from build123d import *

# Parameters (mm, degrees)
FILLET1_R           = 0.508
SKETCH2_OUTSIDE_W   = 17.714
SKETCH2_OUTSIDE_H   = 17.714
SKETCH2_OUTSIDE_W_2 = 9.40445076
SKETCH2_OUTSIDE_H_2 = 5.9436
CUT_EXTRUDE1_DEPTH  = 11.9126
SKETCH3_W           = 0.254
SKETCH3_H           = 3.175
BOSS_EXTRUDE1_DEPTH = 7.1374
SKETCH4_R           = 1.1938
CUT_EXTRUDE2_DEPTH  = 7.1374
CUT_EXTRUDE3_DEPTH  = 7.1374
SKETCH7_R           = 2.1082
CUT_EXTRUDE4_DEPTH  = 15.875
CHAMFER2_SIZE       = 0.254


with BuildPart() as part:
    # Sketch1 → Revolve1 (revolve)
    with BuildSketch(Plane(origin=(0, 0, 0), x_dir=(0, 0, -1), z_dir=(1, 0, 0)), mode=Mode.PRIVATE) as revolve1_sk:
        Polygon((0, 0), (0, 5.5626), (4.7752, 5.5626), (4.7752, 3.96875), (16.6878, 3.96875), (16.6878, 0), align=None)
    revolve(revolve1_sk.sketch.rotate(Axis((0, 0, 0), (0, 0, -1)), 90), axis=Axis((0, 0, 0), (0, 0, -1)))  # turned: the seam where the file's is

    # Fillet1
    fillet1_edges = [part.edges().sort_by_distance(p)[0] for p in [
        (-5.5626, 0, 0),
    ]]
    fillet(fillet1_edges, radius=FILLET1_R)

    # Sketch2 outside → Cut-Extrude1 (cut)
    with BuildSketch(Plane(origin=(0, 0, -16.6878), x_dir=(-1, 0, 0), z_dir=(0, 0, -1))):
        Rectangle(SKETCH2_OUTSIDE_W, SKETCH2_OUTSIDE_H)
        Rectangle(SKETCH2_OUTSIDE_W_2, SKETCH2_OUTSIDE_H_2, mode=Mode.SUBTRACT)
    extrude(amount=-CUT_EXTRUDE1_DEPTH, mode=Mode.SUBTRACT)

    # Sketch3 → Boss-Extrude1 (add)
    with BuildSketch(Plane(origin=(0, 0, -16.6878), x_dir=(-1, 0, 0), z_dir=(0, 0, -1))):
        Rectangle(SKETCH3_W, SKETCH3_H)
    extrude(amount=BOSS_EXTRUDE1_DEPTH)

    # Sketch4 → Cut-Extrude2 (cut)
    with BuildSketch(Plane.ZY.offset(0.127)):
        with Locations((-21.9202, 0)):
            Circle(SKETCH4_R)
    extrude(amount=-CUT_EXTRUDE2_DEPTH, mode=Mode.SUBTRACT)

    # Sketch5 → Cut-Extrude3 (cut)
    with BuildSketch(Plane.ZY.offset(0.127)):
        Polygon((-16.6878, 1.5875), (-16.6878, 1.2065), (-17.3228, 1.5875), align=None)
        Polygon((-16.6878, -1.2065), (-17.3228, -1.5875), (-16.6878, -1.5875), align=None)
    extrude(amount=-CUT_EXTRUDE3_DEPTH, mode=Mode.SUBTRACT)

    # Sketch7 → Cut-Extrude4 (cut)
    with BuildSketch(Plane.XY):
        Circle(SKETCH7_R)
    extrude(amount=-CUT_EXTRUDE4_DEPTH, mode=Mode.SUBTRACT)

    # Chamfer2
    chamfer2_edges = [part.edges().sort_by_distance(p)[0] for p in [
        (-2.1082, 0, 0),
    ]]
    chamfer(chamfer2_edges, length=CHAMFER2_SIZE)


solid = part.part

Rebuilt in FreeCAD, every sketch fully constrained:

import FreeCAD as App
import Part
import Sketcher
Q = App.Units.Quantity


def edges_at(feature, points):
    """Names of the edges that pass closest to the given points."""
    edges = feature.Shape.Edges
    near = lambda p: min(range(len(edges)), key=lambda i: edges[i].distToShape(Part.Vertex(*p))[0])
    return sorted({f"Edge{near(p) + 1}" for p in points})


def add_polygon(sketch, points):
    """Adds a closed chain of lines whose ends are joined by coincident constraints."""
    first, n = sketch.GeometryCount, len(points)
    for a, b in zip(points, points[1:] + points[:1]):
        sketch.addGeometry(Part.LineSegment(App.Vector(*a, 0), App.Vector(*b, 0)), False)
    for i in range(n):
        sketch.addConstraint(Sketcher.Constraint("Coincident", first + i, 2, first + (i + 1) % n, 1))

doc = App.newDocument("Part")
body = doc.addObject("PartDesign::Body", "Body")

# Sketch on YZ plane
sketch1 = body.newObject("Sketcher::SketchObject", "Sketch")
sketch1.AttachmentSupport = (doc.getObject("YZ_Plane"), [""])
sketch1.MapMode = "FlatFace"
add_polygon(sketch1, [(5.6, 0), (0, 0), (0, -16.7), (4, -16.7), (4, -4.8), (5.6, -4.8)])  # lines 0-5
sketch1.addConstraint(Sketcher.Constraint("Horizontal", 0))
sketch1.addConstraint(Sketcher.Constraint("Vertical", 1))
sketch1.addConstraint(Sketcher.Constraint("Horizontal", 2))
sketch1.addConstraint(Sketcher.Constraint("Vertical", 3))
sketch1.addConstraint(Sketcher.Constraint("Horizontal", 4))
sketch1.addConstraint(Sketcher.Constraint("Vertical", 5))
sketch1.addConstraint(Sketcher.Constraint("Coincident", 0, 2, -1, 1))
sketch1.addConstraint(Sketcher.Constraint("DistanceX", 0, 2, 0, 1, Q("0.219 in")))
sketch1.addConstraint(Sketcher.Constraint("DistanceX", 2, 1, 2, 2, Q("0.15625 in")))
sketch1.addConstraint(Sketcher.Constraint("DistanceY", 1, 2, 1, 1, Q("0.657 in")))
sketch1.addConstraint(Sketcher.Constraint("DistanceY", 3, 1, 3, 2, Q("0.469 in")))
revolution = body.newObject("PartDesign::Revolution", "Revolution")
revolution.Profile = sketch1
revolution.ReferenceAxis = (sketch1, ["V_Axis"])
revolution.Angle = 360
doc.recompute()

fillet = body.newObject("PartDesign::Fillet", "Fillet")
fillet.Base = (revolution, edges_at(revolution, [(-5.563, 0, 0)]))
fillet.Radius = Q("0.02 in")

# Sketch on XY plane
sketch2 = body.newObject("Sketcher::SketchObject", "Sketch001")
sketch2.AttachmentSupport = (doc.getObject("XY_Plane"), [""])
sketch2.MapMode = "FlatFace"
sketch2.AttachmentOffset = App.Placement(App.Vector(0, 0, -0.657 * 25.4), App.Rotation())
add_polygon(sketch2, [(9, 9), (9, -9), (-9, -9), (-9, 9)])  # lines 0-3
add_polygon(sketch2, [(-5, -3), (5, -3), (5, 3), (-5, 3)])  # lines 4-7
sketch2.addConstraint(Sketcher.Constraint("Vertical", 0))
sketch2.addConstraint(Sketcher.Constraint("Horizontal", 1))
sketch2.addConstraint(Sketcher.Constraint("Vertical", 2))
sketch2.addConstraint(Sketcher.Constraint("Horizontal", 3))
sketch2.addConstraint(Sketcher.Constraint("Horizontal", 4))
sketch2.addConstraint(Sketcher.Constraint("Vertical", 5))
sketch2.addConstraint(Sketcher.Constraint("Horizontal", 6))
sketch2.addConstraint(Sketcher.Constraint("Vertical", 7))
sketch2.addConstraint(Sketcher.Constraint("Symmetric", 0, 2, 2, 2, -1, 1))
sketch2.addConstraint(Sketcher.Constraint("Symmetric", 4, 2, 6, 2, -1, 1))
sketch2.addConstraint(Sketcher.Constraint("Equal", 3, 0))
sketch2.addConstraint(Sketcher.Constraint("DistanceY", 5, 1, 5, 2, Q("0.234 in")))
sketch2.addConstraint(Sketcher.Constraint("DistanceX", 1, 2, 1, 1, Q("17.714 mm")))
sketch2.addConstraint(Sketcher.Constraint("DistanceX", 4, 1, 4, 2, Q("9.404451 mm")))
pocket1 = body.newObject("PartDesign::Pocket", "Pocket")
pocket1.Profile = sketch2
pocket1.Length = Q("0.469 in")
pocket1.Reversed = True

# Sketch on XY plane
sketch3 = body.newObject("Sketcher::SketchObject", "Sketch002")
sketch3.AttachmentSupport = (doc.getObject("XY_Plane"), [""])
sketch3.MapMode = "FlatFace"
sketch3.AttachmentOffset = App.Placement(App.Vector(0, 0, -0.657 * 25.4), App.Rotation())
add_polygon(sketch3, [(0.13, 1.59), (0.13, -1.59), (-0.13, -1.59), (-0.13, 1.59)])  # lines 0-3
sketch3.addConstraint(Sketcher.Constraint("Vertical", 0))
sketch3.addConstraint(Sketcher.Constraint("Horizontal", 1))
sketch3.addConstraint(Sketcher.Constraint("Vertical", 2))
sketch3.addConstraint(Sketcher.Constraint("Horizontal", 3))
sketch3.addConstraint(Sketcher.Constraint("Symmetric", 0, 2, 2, 2, -1, 1))
sketch3.addConstraint(Sketcher.Constraint("DistanceX", 1, 2, 1, 1, Q("0.01 in")))
sketch3.addConstraint(Sketcher.Constraint("DistanceY", 0, 2, 0, 1, Q("0.125 in")))
pad1 = body.newObject("PartDesign::Pad", "Pad")
pad1.Profile = sketch3
pad1.Length = Q("0.281 in")
pad1.Reversed = True

# Sketch on YZ plane
sketch4 = body.newObject("Sketcher::SketchObject", "Sketch003")
sketch4.AttachmentSupport = (doc.getObject("YZ_Plane"), [""])
sketch4.MapMode = "FlatFace"
sketch4.AttachmentOffset = App.Placement(App.Vector(0, 0, -0.005 * 25.4), App.Rotation())
sketch4.addGeometry(Part.Circle(App.Vector(0, -21.9, 0), App.Vector(0, 0, 1), 1.2), False)
sketch4.addConstraint(Sketcher.Constraint("PointOnObject", 0, 3, -2))
sketch4.addConstraint(Sketcher.Constraint("Diameter", 0, Q("0.094 in")))
sketch4.addConstraint(Sketcher.Constraint("DistanceY", 0, 3, -1, 1, Q("0.863 in")))
pocket2 = body.newObject("PartDesign::Pocket", "Pocket001")
pocket2.Profile = sketch4
pocket2.Length = Q("0.281 in")
pocket2.Reversed = True

# Sketch on YZ plane
sketch5 = body.newObject("Sketcher::SketchObject", "Sketch004")
sketch5.AttachmentSupport = (doc.getObject("YZ_Plane"), [""])
sketch5.MapMode = "FlatFace"
sketch5.AttachmentOffset = App.Placement(App.Vector(0, 0, -0.005 * 25.4), App.Rotation())
add_polygon(sketch5, [(1.21, -16.69), (1.59, -16.69), (1.59, -17.32)])  # lines 0-2
add_polygon(sketch5, [(-1.21, -16.69), (-1.59, -17.32), (-1.59, -16.69)])  # lines 3-5
sketch5.addConstraint(Sketcher.Constraint("Horizontal", 0))
sketch5.addConstraint(Sketcher.Constraint("Vertical", 1))
sketch5.addConstraint(Sketcher.Constraint("Vertical", 4))
sketch5.addConstraint(Sketcher.Constraint("Horizontal", 5))
sketch5.addConstraint(Sketcher.Constraint("Symmetric", 1, 2, 3, 2, -2))
sketch5.addConstraint(Sketcher.Constraint("Symmetric", 2, 2, 5, 2, -2))
sketch5.addConstraint(Sketcher.Constraint("DistanceX", 0, 1, 0, 2, Q("0.015 in")))
sketch5.addConstraint(Sketcher.Constraint("DistanceY", 1, 2, 1, 1, Q("0.025 in")))
sketch5.addConstraint(Sketcher.Constraint("DistanceX", 3, 2, 2, 2, Q("0.11 in")))
sketch5.addConstraint(Sketcher.Constraint("DistanceY", 0, 2, -1, 1, Q("0.657 in")))
pocket3 = body.newObject("PartDesign::Pocket", "Pocket002")
pocket3.Profile = sketch5
pocket3.Length = Q("0.281 in")
pocket3.Reversed = True

# Sketch on XY plane
sketch6 = body.newObject("Sketcher::SketchObject", "Sketch005")
sketch6.AttachmentSupport = (doc.getObject("XY_Plane"), [""])
sketch6.MapMode = "FlatFace"
sketch6.addGeometry(Part.Circle(App.Vector(0, 0, 0), App.Vector(0, 0, 1), 2.1), False)
sketch6.addConstraint(Sketcher.Constraint("Coincident", 0, 3, -1, 1))
sketch6.addConstraint(Sketcher.Constraint("Diameter", 0, Q("0.166 in")))
pocket4 = body.newObject("PartDesign::Pocket", "Pocket003")
pocket4.Profile = sketch6
pocket4.Length = Q("0.625 in")
doc.recompute()

chamfer = body.newObject("PartDesign::Chamfer", "Chamfer")
chamfer.Base = (pocket4, edges_at(pocket4, [(-2.108, 0, 0)]))
chamfer.Size = Q("0.01 in")

doc.recompute()
